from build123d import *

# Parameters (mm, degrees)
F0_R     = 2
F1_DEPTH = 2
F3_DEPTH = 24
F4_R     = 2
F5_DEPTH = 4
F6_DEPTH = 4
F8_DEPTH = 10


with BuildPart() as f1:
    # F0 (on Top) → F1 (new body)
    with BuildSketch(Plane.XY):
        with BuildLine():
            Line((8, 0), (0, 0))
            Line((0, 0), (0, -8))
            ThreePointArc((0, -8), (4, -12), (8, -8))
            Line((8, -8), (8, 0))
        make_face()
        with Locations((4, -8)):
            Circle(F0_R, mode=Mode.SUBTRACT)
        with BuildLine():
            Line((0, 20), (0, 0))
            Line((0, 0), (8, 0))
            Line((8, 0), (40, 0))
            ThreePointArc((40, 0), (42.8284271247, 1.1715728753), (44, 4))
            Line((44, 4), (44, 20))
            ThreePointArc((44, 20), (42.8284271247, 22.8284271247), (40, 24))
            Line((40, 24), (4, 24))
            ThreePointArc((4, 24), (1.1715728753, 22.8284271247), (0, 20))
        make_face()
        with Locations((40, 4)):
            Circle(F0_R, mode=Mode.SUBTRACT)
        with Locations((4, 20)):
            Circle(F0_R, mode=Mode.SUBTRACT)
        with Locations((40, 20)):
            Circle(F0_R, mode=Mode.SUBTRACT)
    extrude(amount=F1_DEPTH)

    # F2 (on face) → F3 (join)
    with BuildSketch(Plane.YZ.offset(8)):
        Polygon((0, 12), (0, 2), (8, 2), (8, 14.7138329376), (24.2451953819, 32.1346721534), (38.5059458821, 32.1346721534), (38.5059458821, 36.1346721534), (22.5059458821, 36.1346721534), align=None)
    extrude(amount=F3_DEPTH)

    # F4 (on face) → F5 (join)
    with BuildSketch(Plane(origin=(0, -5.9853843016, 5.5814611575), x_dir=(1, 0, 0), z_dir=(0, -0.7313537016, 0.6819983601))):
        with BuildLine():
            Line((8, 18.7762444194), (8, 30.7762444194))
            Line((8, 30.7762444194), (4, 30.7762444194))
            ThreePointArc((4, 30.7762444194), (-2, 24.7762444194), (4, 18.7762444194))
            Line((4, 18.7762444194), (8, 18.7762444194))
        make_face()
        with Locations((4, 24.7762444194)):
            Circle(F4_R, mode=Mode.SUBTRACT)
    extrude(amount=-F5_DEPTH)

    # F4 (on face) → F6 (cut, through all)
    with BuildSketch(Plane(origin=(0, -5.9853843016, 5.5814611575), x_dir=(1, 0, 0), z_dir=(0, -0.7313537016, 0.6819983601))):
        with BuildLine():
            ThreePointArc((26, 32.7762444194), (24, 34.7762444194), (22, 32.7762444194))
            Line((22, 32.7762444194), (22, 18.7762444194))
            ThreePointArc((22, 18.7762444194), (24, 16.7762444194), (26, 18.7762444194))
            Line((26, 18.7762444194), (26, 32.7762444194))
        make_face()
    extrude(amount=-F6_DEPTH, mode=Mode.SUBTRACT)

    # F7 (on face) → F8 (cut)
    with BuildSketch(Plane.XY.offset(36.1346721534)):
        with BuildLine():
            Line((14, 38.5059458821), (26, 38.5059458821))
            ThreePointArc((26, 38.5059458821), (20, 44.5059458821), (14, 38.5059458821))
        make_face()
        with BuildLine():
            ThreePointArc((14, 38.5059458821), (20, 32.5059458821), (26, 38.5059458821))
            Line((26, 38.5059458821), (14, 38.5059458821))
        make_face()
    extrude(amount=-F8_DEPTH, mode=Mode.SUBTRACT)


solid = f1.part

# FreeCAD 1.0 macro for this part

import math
import FreeCAD as App
import Part
import Sketcher

V = App.Vector
Q = App.Units.Quantity


def add_polygon(sketch, points):
    """Adds a closed chain of lines whose ends are joined by coincident constraints."""
    first, n = sketch.GeometryCount, len(points)
    for a, b in zip(points, points[1:] + points[:1]):
        sketch.addGeometry(Part.LineSegment(App.Vector(*a, 0), App.Vector(*b, 0)), False)
    for i in range(n):
        sketch.addConstraint(Sketcher.Constraint("Coincident", first + i, 2, first + (i + 1) % n, 1))

doc = App.newDocument("Part")
body = doc.addObject("PartDesign::Body", "Body")

# Sketch on XY plane
sketch1 = body.newObject("Sketcher::SketchObject", "Sketch")
sketch1.AttachmentSupport = (doc.getObject("XY_Plane"), [""])
sketch1.MapMode = "FlatFace"
sketch1.addGeometry([
    Part.LineSegment(V(8, -8, 0), V(8, 0, 0)),  # 0
    Part.LineSegment(V(8, 0, 0), V(40, 0, 0)),  # 1
    Part.ArcOfCircle(Part.Circle(V(40, 4, 0), V(0, 0, 1), 4), math.radians(-90), math.radians(0)),  # 2
    Part.LineSegment(V(44, 4, 0), V(44, 20, 0)),  # 3
    Part.ArcOfCircle(Part.Circle(V(40, 20, 0), V(0, 0, 1), 4), math.radians(0), math.radians(90)),  # 4
    Part.LineSegment(V(40, 24, 0), V(4, 24, 0)),  # 5
    Part.ArcOfCircle(Part.Circle(V(4, 20, 0), V(0, 0, 1), 4), math.radians(90), math.radians(180)),  # 6
    Part.LineSegment(V(0, 20, 0), V(0, -8, 0)),  # 7
    Part.ArcOfCircle(Part.Circle(V(4, -8, 0), V(0, 0, 1), 4), math.radians(180), math.radians(360)),  # 8
    Part.Circle(V(4, -8, 0), V(0, 0, 1), 2),  # 9
    Part.Circle(V(40, 4, 0), V(0, 0, 1), 2),  # 10
    Part.Circle(V(4, 20, 0), V(0, 0, 1), 2),  # 11
    Part.Circle(V(40, 20, 0), V(0, 0, 1), 2),  # 12
], False)
sketch1.addConstraint([
    Sketcher.Constraint("Coincident", 0, 2, 1, 1),
    Sketcher.Constraint("Tangent", 1, 2, 2, 1),
    Sketcher.Constraint("Tangent", 2, 2, 3, 1),
    Sketcher.Constraint("Tangent", 3, 2, 4, 1),
    Sketcher.Constraint("Tangent", 4, 2, 5, 1),
    Sketcher.Constraint("Tangent", 5, 2, 6, 1),
    Sketcher.Constraint("Tangent", 6, 2, 7, 1),
    Sketcher.Constraint("Tangent", 7, 2, 8, 1),
    Sketcher.Constraint("Tangent", 8, 2, 0, 1),
    Sketcher.Constraint("Vertical", 0),
    Sketcher.Constraint("Horizontal", 1),
    Sketcher.Constraint("Vertical", 3),
    Sketcher.Constraint("Horizontal", 5),
    Sketcher.Constraint("Vertical", 7),
    Sketcher.Constraint("Coincident", 9, 3, 8, 3),
    Sketcher.Constraint("Coincident", 10, 3, 2, 3),
    Sketcher.Constraint("Coincident", 11, 3, 6, 3),
    Sketcher.Constraint("Coincident", 12, 3, 4, 3),
    Sketcher.Constraint("Equal", 2, 4),
    Sketcher.Constraint("Equal", 4, 6),
    Sketcher.Constraint("Equal", 6, 8),
    Sketcher.Constraint("Equal", 9, 10),
    Sketcher.Constraint("Equal", 10, 11),
    Sketcher.Constraint("Equal", 11, 12),
    Sketcher.Constraint("PointOnObject", 0, 2, -1),
    Sketcher.Constraint("PointOnObject", 6, 2, -2),
    Sketcher.Constraint("Diameter", 9, 4.0),
    Sketcher.Constraint("Radius", 2, 4.0),
    Sketcher.Constraint("DistanceX", 1, 1, 1, 2, 32.0),
    Sketcher.Constraint("DistanceY", 0, 1, 0, 2, 8.0),
    Sketcher.Constraint("DistanceY", 3, 1, 3, 2, 16.0),
])
pad1 = body.newObject("PartDesign::Pad", "Pad")
pad1.Profile = sketch1
pad1.Length = 2

# Sketch on YZ plane
sketch2 = body.newObject("Sketcher::SketchObject", "Sketch001")
sketch2.AttachmentSupport = (doc.getObject("YZ_Plane"), [""])
sketch2.MapMode = "FlatFace"
sketch2.AttachmentOffset = App.Placement(V(0, 0, 8), App.Rotation())
add_polygon(sketch2, [(0, 12), (0, 2), (8, 2), (8, 14.7), (24.2, 32.1), (38.5, 32.1), (38.5, 36.1), (22.5, 36.1)])  # lines 0-7
sketch2.addConstraint([
    Sketcher.Constraint("Vertical", 0),
    Sketcher.Constraint("Horizontal", 1),
    Sketcher.Constraint("Vertical", 2),
    Sketcher.Constraint("Horizontal", 4),
    Sketcher.Constraint("Vertical", 5),
    Sketcher.Constraint("Horizontal", 6),
    Sketcher.Constraint("PointOnObject", 0, 2, -2),
    Sketcher.Constraint("Parallel", 3, 7),
    Sketcher.Constraint("DistanceX", 1, 1, 1, 2, 8.0),
    Sketcher.Constraint("DistanceX", 6, 2, 6, 1, 16.0),
    Sketcher.Constraint("DistanceY", 0, 2, 0, 1, 10.0),
    Sketcher.Constraint("DistanceY", 5, 1, 5, 2, 4.0),
    Sketcher.Constraint("Angle", 3, Q("47 deg")),
    Sketcher.Constraint("Distance", 7, 33.0),
    Sketcher.Constraint("DistanceY", -1, 1, 0, 2, 2.0),
    Sketcher.Constraint("DistanceX", 4, 1, 4, 2, 14.260751),
])
pad2 = body.newObject("PartDesign::Pad", "Pad001")
pad2.Profile = sketch2
pad2.Length = 24

# Sketch on an angled plane
sketch3 = body.newObject("Sketcher::SketchObject", "Sketch002")
sketch3.Placement = App.Placement(V(0, -5.985384, 5.581461), App.Rotation(V(1, 0, 0), V(0, 0.68199836, 0.731353702), V(0, -0.731353702, 0.68199836), "ZXY"))
sketch3.addGeometry([
    Part.LineSegment(V(8, 18.8, 0), V(8, 30.8, 0)),  # 0
    Part.LineSegment(V(8, 30.8, 0), V(4, 30.8, 0)),  # 1
    Part.ArcOfCircle(Part.Circle(V(4, 24.8, 0), V(0, 0, 1), 6), math.radians(90), math.radians(270)),  # 2
    Part.LineSegment(V(4, 18.8, 0), V(8, 18.8, 0)),  # 3
    Part.Circle(V(4, 24.8, 0), V(0, 0, 1), 2),  # 4
], False)
sketch3.addConstraint([
    Sketcher.Constraint("Coincident", 0, 2, 1, 1),
    Sketcher.Constraint("Tangent", 1, 2, 2, 1),
    Sketcher.Constraint("Tangent", 2, 2, 3, 1),
    Sketcher.Constraint("Coincident", 3, 2, 0, 1),
    Sketcher.Constraint("Vertical", 0),
    Sketcher.Constraint("Horizontal", 1),
    Sketcher.Constraint("Horizontal", 3),
    Sketcher.Constraint("Coincident", 4, 3, 2, 3),
    Sketcher.Constraint("Diameter", 4, 4.0),
    Sketcher.Constraint("Radius", 2, 6.0),
    Sketcher.Constraint("DistanceX", 1, 2, 1, 1, 4.0),
    Sketcher.Constraint("DistanceX", -1, 1, 2, 3, 4.0),
    Sketcher.Constraint("DistanceY", -1, 1, 2, 3, 24.776244),
])
pad3 = body.newObject("PartDesign::Pad", "Pad002")
pad3.Profile = sketch3
pad3.Length = 4
pad3.Reversed = True

# Sketch on an angled plane
sketch4 = body.newObject("Sketcher::SketchObject", "Sketch003")
sketch4.Placement = App.Placement(V(0, -5.985384, 5.581461), App.Rotation(V(1, 0, 0), V(0, 0.68199836, 0.731353702), V(0, -0.731353702, 0.68199836), "ZXY"))
sketch4.addGeometry([
    Part.ArcOfCircle(Part.Circle(V(24, 32.8, 0), V(0, 0, 1), 2), math.radians(0), math.radians(180)),
    Part.LineSegment(V(22, 32.8, 0), V(22, 18.8, 0)),
    Part.ArcOfCircle(Part.Circle(V(24, 18.8, 0), V(0, 0, 1), 2), math.radians(180), math.radians(360)),
    Part.LineSegment(V(26, 18.8, 0), V(26, 32.8, 0)),
], False)
sketch4.addConstraint([
    Sketcher.Constraint("Tangent", 0, 2, 1, 1),
    Sketcher.Constraint("Tangent", 1, 2, 2, 1),
    Sketcher.Constraint("Tangent", 2, 2, 3, 1),
    Sketcher.Constraint("Tangent", 3, 2, 0, 1),
    Sketcher.Constraint("Vertical", 1),
    Sketcher.Constraint("Vertical", 3),
    Sketcher.Constraint("Radius", 0, 2.0),
    Sketcher.Constraint("DistanceY", 1, 2, 1, 1, 14.0),
    Sketcher.Constraint("DistanceX", -1, 1, 0, 3, 24.0),
    Sketcher.Constraint("DistanceY", -1, 1, 0, 3, 32.776244),
])
pocket1 = body.newObject("PartDesign::Pocket", "Pocket")
pocket1.Profile = sketch4
pocket1.Length = 4

# Sketch on XY plane
sketch5 = body.newObject("Sketcher::SketchObject", "Sketch004")
sketch5.AttachmentSupport = (doc.getObject("XY_Plane"), [""])
sketch5.MapMode = "FlatFace"
sketch5.AttachmentOffset = App.Placement(V(0, 0, 36.134672), App.Rotation())
sketch5.addGeometry(Part.Circle(V(20, 39, 0), V(0, 0, 1), 6), False)
sketch5.addConstraint([
    Sketcher.Constraint("Diameter", 0, 12.0),
    Sketcher.Constraint("DistanceX", -1, 1, 0, 3, 20.0),
    Sketcher.Constraint("DistanceY", -1, 1, 0, 3, 38.505946),
])
pocket2 = body.newObject("PartDesign::Pocket", "Pocket001")
pocket2.Profile = sketch5
pocket2.Length = 10

doc.recompute()
